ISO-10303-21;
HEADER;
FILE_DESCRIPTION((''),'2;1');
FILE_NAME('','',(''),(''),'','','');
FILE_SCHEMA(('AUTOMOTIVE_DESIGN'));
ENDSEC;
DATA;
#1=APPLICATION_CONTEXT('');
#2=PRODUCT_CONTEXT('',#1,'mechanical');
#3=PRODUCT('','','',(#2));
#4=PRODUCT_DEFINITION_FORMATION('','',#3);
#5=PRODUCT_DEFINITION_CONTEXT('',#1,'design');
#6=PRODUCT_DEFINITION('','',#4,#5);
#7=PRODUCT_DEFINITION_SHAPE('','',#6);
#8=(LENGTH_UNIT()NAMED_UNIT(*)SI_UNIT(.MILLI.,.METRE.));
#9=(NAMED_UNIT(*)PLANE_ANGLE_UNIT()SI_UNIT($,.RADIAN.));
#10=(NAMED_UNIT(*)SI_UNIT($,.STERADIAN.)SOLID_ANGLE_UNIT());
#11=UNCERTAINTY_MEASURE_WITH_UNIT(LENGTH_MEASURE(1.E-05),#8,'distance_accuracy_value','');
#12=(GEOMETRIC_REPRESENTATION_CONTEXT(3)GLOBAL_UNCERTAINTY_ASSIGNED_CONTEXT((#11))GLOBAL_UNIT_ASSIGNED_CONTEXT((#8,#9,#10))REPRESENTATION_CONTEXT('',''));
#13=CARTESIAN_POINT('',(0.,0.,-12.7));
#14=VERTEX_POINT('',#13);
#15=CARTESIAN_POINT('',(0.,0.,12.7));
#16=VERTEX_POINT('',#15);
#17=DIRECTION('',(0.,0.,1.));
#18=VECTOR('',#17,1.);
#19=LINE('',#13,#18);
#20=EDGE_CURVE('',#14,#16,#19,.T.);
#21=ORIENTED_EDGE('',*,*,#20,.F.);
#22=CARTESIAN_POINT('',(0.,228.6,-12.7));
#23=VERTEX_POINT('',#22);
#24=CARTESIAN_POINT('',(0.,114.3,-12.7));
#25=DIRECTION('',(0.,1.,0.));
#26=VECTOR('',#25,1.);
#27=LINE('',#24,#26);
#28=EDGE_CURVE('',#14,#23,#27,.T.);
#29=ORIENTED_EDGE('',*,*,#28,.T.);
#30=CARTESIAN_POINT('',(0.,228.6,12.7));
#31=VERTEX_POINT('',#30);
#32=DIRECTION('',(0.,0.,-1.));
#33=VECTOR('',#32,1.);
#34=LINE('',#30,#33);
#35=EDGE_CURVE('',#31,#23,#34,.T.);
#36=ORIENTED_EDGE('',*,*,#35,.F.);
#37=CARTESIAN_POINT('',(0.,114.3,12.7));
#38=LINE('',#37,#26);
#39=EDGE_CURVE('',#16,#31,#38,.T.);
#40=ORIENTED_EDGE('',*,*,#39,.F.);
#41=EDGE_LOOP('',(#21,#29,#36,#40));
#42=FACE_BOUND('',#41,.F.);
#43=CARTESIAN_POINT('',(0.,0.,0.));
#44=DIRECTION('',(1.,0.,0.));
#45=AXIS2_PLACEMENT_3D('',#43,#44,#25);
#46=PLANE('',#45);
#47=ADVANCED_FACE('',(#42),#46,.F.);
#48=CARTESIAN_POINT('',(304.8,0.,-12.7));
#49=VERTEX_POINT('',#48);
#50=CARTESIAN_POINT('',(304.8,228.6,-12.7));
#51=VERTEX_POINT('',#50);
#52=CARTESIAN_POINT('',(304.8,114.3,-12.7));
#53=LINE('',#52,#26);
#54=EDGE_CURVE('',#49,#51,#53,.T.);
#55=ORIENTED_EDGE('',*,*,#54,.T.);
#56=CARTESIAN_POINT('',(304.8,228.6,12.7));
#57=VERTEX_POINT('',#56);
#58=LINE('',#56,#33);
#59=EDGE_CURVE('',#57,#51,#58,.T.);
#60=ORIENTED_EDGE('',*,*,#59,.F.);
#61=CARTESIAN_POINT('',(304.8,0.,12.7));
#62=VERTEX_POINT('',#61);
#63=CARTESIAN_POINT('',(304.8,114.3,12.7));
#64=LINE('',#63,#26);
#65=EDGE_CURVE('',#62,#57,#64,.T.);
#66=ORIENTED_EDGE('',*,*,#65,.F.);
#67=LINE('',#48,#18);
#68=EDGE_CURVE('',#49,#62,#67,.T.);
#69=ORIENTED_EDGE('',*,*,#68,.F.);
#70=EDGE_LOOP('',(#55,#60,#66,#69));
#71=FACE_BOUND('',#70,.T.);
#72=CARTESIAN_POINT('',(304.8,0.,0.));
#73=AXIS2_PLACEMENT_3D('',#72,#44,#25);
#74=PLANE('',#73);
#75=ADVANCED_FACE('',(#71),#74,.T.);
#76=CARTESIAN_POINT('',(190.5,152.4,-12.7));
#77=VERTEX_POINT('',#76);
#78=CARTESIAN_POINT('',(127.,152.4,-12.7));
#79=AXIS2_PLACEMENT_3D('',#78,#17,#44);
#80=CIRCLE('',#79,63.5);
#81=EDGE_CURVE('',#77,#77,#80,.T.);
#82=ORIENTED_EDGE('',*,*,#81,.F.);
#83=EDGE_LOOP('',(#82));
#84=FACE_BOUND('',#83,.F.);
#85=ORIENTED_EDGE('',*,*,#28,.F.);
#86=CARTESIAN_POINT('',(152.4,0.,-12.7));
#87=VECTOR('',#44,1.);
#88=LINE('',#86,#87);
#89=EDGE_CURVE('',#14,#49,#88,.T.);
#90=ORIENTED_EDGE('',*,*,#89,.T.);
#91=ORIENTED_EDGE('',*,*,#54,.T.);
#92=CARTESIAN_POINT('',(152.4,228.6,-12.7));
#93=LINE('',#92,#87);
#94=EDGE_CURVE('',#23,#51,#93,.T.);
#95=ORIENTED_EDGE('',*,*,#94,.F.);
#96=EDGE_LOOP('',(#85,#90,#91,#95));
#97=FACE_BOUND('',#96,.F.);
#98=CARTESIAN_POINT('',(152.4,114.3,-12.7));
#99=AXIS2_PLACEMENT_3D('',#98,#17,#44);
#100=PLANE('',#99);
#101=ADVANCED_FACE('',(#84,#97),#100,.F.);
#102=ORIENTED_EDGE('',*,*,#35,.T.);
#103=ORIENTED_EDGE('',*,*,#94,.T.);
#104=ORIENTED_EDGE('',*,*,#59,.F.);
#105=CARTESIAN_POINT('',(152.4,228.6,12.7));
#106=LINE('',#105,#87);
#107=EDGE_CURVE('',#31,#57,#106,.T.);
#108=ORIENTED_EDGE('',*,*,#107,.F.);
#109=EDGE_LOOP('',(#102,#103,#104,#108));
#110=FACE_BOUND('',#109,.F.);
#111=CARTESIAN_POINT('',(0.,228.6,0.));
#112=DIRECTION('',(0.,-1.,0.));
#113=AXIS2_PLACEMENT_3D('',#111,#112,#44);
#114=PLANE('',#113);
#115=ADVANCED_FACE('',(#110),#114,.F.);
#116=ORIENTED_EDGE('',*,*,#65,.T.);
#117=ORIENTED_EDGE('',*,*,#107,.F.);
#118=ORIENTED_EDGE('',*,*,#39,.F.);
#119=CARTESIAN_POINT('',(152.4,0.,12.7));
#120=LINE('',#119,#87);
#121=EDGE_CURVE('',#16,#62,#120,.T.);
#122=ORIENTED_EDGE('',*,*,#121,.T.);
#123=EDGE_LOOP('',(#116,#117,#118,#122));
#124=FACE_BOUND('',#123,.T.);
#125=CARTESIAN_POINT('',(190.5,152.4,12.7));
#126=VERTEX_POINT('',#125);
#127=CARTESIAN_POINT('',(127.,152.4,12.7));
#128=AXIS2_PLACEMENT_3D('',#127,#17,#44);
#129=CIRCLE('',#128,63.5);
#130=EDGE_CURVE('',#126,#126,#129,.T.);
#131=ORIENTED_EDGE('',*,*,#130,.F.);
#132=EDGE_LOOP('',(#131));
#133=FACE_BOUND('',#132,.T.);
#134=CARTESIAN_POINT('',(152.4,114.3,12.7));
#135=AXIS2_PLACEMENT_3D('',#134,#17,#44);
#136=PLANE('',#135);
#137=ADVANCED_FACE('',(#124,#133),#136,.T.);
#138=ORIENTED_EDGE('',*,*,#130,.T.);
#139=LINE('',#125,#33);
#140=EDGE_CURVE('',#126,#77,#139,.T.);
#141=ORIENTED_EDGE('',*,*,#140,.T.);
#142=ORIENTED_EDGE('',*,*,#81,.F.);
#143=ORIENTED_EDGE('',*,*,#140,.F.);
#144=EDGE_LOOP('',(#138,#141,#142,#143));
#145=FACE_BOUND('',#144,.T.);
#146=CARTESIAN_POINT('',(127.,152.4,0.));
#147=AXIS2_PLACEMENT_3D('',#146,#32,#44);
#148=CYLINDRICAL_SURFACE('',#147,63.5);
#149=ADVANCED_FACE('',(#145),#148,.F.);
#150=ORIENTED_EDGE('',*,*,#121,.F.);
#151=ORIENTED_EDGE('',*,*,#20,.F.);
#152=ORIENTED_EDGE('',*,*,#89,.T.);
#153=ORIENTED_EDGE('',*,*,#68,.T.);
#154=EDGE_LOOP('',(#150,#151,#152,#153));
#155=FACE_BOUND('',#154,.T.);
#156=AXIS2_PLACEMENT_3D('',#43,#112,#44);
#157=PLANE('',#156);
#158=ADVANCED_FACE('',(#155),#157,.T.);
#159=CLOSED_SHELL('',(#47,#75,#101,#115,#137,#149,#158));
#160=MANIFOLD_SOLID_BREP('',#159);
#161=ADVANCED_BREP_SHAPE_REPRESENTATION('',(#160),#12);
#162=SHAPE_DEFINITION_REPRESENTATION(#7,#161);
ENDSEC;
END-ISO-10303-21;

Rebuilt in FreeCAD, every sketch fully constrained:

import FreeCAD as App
import Part
import Sketcher
Q = App.Units.Quantity

doc = App.newDocument("Part")
body = doc.addObject("PartDesign::Body", "Body")

# Sketch on XY plane
sketch1 = body.newObject("Sketcher::SketchObject", "Sketch")
sketch1.AttachmentSupport = (doc.getObject("XY_Plane"), [""])
sketch1.MapMode = "FlatFace"
sketch1.addGeometry(Part.LineSegment(App.Vector(0, 229, 0), App.Vector(0, 0, 0)), False)
sketch1.addGeometry(Part.LineSegment(App.Vector(0, 0, 0), App.Vector(305, 0, 0)), False)
sketch1.addGeometry(Part.LineSegment(App.Vector(305, 0, 0), App.Vector(305, 229, 0)), False)
sketch1.addGeometry(Part.LineSegment(App.Vector(305, 229, 0), App.Vector(0, 229, 0)), False)
sketch1.addGeometry(Part.Circle(App.Vector(127, 152, 0), App.Vector(0, 0, 1), 64), False)
sketch1.addConstraint(Sketcher.Constraint("Coincident", 0, 2, 1, 1))
sketch1.addConstraint(Sketcher.Constraint("Coincident", 1, 2, 2, 1))
sketch1.addConstraint(Sketcher.Constraint("Coincident", 2, 2, 3, 1))
sketch1.addConstraint(Sketcher.Constraint("Coincident", 3, 2, 0, 1))
sketch1.addConstraint(Sketcher.Constraint("Vertical", 0))
sketch1.addConstraint(Sketcher.Constraint("Horizontal", 1))
sketch1.addConstraint(Sketcher.Constraint("Vertical", 2))
sketch1.addConstraint(Sketcher.Constraint("Horizontal", 3))
sketch1.addConstraint(Sketcher.Constraint("Coincident", 0, 2, -1, 1))
sketch1.addConstraint(Sketcher.Constraint("Diameter", 4, Q("5 in")))
sketch1.addConstraint(Sketcher.Constraint("DistanceX", 1, 1, 1, 2, Q("12 in")))
sketch1.addConstraint(Sketcher.Constraint("DistanceY", 0, 2, 0, 1, Q("9 in")))
sketch1.addConstraint(Sketcher.Constraint("DistanceX", -1, 1, 4, 3, Q("5 in")))
sketch1.addConstraint(Sketcher.Constraint("DistanceY", -1, 1, 4, 3, Q("6 in")))
pad1 = body.newObject("PartDesign::Pad", "Pad")
pad1.Profile = sketch1
pad1.Length = Q("1 in")
pad1.Midplane = True

doc.recompute()
